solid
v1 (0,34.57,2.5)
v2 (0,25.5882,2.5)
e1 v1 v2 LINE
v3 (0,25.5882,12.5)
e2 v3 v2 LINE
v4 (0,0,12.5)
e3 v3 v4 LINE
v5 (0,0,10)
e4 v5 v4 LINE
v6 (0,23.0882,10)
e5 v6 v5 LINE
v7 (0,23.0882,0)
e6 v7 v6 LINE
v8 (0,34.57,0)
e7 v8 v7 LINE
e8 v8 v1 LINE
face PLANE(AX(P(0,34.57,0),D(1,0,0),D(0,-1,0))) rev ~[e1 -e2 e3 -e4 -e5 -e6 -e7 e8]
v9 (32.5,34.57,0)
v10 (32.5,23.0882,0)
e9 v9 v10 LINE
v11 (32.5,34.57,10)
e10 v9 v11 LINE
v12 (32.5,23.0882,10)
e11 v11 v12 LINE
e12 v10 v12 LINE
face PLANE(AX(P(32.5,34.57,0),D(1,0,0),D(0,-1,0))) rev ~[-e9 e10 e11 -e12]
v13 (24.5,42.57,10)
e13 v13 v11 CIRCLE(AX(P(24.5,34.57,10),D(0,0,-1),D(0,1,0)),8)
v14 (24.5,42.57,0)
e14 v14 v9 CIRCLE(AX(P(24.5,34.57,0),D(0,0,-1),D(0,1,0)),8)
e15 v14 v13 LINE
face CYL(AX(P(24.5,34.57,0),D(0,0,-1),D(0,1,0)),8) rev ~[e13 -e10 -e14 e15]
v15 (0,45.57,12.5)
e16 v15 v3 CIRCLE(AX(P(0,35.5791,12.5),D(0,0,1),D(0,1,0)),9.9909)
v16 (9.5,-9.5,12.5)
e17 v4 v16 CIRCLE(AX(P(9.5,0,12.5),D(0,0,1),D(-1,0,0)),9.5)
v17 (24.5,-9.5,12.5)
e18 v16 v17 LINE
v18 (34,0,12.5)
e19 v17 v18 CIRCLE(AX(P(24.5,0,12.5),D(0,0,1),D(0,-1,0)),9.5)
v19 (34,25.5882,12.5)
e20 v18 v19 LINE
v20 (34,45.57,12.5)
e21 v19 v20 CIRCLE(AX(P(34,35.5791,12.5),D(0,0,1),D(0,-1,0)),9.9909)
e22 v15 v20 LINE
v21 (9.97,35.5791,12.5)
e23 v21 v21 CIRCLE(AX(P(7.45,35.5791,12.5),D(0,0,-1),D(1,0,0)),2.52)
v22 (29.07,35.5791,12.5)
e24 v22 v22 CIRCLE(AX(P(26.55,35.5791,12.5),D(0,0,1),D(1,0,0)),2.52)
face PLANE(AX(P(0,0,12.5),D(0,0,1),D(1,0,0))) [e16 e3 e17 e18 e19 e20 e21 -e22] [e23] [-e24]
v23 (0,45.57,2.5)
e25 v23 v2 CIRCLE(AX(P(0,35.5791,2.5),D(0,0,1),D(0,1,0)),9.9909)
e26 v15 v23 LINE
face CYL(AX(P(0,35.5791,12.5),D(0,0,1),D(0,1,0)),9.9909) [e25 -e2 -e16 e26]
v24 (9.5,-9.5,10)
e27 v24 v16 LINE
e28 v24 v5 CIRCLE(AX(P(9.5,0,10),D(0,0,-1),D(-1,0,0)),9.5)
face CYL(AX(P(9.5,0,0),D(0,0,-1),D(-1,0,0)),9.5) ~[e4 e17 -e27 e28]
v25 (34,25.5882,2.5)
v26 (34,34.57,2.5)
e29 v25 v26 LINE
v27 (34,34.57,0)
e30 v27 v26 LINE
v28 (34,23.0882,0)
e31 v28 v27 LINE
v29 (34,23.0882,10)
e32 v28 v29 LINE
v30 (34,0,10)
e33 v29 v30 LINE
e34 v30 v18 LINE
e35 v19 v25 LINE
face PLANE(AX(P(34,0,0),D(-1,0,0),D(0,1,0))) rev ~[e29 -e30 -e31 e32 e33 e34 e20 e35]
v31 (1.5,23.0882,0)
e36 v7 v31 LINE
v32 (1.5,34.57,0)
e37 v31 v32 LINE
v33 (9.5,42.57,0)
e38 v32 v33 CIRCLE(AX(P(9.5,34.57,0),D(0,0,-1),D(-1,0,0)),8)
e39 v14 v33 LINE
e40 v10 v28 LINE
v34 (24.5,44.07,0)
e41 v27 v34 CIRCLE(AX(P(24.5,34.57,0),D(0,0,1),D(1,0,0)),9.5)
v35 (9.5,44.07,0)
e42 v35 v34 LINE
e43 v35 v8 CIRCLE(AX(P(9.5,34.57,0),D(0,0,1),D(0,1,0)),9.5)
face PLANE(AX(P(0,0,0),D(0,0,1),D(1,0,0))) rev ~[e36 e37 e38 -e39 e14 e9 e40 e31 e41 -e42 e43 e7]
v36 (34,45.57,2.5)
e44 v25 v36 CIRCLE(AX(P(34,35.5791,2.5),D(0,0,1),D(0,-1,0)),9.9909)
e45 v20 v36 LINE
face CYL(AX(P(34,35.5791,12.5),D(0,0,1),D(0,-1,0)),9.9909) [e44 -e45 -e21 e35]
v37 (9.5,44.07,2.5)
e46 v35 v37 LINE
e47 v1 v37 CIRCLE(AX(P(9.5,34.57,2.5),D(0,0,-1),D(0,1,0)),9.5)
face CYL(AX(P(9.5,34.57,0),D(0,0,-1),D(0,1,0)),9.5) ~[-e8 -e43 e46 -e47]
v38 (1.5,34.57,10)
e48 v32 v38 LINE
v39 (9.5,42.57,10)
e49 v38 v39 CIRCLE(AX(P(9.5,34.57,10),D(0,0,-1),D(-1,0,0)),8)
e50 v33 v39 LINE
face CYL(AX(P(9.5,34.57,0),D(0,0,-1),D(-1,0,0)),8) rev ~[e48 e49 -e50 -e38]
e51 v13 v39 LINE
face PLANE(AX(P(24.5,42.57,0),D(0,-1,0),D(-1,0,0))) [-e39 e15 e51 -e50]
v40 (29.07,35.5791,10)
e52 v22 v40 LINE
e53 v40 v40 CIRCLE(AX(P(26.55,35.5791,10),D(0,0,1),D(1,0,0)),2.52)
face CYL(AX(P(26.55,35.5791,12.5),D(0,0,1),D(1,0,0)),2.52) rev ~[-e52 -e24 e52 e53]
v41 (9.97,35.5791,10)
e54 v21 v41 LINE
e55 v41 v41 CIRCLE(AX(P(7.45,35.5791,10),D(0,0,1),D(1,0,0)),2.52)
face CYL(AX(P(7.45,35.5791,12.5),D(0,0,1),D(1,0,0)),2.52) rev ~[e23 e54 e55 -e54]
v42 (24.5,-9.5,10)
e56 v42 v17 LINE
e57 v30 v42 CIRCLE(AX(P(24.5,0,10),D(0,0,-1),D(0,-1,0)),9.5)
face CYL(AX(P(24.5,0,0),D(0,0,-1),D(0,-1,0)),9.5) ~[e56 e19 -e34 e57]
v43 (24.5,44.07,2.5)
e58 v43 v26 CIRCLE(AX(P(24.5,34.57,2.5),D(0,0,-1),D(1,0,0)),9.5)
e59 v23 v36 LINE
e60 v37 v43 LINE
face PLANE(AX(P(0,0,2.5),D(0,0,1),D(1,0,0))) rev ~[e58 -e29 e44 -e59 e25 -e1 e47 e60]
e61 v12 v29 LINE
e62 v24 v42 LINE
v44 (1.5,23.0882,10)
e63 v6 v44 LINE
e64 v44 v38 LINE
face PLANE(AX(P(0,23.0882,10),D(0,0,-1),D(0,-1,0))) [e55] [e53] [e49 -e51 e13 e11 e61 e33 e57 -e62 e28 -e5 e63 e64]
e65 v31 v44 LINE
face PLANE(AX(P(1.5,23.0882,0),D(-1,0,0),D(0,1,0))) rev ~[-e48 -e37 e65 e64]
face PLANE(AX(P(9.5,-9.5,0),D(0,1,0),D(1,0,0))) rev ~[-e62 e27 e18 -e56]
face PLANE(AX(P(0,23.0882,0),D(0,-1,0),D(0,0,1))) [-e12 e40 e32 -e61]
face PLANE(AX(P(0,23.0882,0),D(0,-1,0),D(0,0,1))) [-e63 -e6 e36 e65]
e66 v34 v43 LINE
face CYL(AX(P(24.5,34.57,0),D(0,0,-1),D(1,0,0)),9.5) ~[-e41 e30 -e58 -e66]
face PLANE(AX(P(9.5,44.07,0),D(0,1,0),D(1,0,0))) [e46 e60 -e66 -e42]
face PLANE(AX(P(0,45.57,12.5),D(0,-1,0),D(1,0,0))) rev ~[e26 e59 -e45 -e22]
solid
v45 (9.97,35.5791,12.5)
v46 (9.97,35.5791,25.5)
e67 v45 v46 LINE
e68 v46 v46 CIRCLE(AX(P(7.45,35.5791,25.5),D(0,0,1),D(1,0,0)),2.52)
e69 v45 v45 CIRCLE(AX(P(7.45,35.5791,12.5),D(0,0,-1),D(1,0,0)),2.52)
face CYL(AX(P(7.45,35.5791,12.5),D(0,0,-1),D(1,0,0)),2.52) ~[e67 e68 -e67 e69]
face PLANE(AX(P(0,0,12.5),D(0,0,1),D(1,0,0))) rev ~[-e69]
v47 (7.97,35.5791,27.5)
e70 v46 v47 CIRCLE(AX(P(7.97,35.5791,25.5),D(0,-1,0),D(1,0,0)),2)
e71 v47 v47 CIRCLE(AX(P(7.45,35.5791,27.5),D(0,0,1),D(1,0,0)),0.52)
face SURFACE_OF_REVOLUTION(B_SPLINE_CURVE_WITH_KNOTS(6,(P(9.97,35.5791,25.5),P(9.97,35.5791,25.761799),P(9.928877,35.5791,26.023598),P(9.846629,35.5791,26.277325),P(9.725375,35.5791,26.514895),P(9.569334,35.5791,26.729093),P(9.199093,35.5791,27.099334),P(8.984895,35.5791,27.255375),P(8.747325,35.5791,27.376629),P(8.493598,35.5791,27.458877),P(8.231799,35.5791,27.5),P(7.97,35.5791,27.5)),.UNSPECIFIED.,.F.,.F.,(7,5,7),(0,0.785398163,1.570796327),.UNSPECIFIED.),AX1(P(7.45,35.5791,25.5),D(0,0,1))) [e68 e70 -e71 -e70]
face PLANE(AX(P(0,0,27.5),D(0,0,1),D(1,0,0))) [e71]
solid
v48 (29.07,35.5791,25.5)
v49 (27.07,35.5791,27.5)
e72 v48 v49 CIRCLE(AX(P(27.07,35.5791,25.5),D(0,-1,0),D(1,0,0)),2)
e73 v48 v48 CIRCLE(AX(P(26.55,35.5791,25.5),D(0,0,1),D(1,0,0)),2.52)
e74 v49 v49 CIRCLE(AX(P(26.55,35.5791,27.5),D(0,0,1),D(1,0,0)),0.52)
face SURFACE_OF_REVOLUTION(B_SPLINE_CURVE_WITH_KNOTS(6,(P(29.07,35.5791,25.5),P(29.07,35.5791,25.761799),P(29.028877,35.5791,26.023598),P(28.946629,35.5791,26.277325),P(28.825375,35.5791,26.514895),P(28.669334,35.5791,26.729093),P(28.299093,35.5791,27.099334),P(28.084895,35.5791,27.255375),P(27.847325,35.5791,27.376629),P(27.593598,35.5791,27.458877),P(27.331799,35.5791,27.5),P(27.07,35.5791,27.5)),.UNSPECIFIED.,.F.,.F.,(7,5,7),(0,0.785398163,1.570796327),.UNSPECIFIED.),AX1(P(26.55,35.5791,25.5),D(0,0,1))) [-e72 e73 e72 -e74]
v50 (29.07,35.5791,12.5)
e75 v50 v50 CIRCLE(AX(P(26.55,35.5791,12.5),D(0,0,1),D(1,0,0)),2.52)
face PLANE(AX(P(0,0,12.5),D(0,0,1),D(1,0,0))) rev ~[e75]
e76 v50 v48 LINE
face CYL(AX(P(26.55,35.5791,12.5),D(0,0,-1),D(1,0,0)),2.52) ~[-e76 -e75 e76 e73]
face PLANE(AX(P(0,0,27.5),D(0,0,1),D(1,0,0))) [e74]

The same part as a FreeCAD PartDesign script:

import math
import FreeCAD as App
import Part
import Sketcher


def edges_at(feature, points):
    """Names of the edges that pass closest to the given points."""
    edges = feature.Shape.Edges
    near = lambda p: min(range(len(edges)), key=lambda i: edges[i].distToShape(Part.Vertex(*p))[0])
    return sorted({f"Edge{near(p) + 1}" for p in points})


def add_polygon(sketch, points):
    """Adds a closed chain of lines whose ends are joined by coincident constraints."""
    first, n = sketch.GeometryCount, len(points)
    for a, b in zip(points, points[1:] + points[:1]):
        sketch.addGeometry(Part.LineSegment(App.Vector(*a, 0), App.Vector(*b, 0)), False)
    for i in range(n):
        sketch.addConstraint(Sketcher.Constraint("Coincident", first + i, 2, first + (i + 1) % n, 1))

doc = App.newDocument("Part")
params = doc.addObject("Spreadsheet::Sheet", "Params")
for row, (alias, value) in enumerate([
    ("sketch1_radius", "9.5 mm"),
    ("sketch1_width", "15 mm"),
    ("sketch1_height", "34.57 mm"),
    ("pad1_length", "12.5 mm"),
    ("sketch2_height", "10 mm"),
    ("sketch3_width", "34 mm"),
    ("pad2_length", "10 mm"),
    ("sketch4_radius", "8 mm"),
    ("sketch4_width", "15 mm"),
    ("pocket2_length", "10 mm"),
    ("sketch5_diameter", "5.04 mm"),
    ("pocket3_length", "10 mm"),
    ("sketch6_diameter", "5.04 mm"),
    ("pad3_length", "15 mm"),
    ("fillet_radius", "2 mm"),
], start=1):
    params.set(f"A{row}", alias)
    params.set(f"B{row}", "=" + value)
    params.setAlias(f"B{row}", alias)

body = doc.addObject("PartDesign::Body", "Body")
body.AllowCompound = True

# Sketch on XY plane
sketch1 = body.newObject("Sketcher::SketchObject", "Sketch")
sketch1.AttachmentSupport = (doc.getObject("XY_Plane"), [""])
sketch1.MapMode = "FlatFace"
sketch1.addGeometry([
    Part.ArcOfCircle(Part.Circle(App.Vector(9.5, 34.57, 0), App.Vector(0, 0, 1), 9.5), math.radians(90), math.radians(180)),  # 0
    Part.LineSegment(App.Vector(0, 34.57, 0), App.Vector(0, 0, 0)),  # 1
    Part.ArcOfCircle(Part.Circle(App.Vector(9.5, 0, 0), App.Vector(0, 0, 1), 9.5), math.radians(180), math.radians(270)),  # 2
    Part.LineSegment(App.Vector(9.5, -9.5, 0), App.Vector(24.5, -9.5, 0)),  # 3
    Part.ArcOfCircle(Part.Circle(App.Vector(24.5, 0, 0), App.Vector(0, 0, 1), 9.5), math.radians(-90), math.radians(0)),  # 4
    Part.LineSegment(App.Vector(34, 0, 0), App.Vector(34, 34.57, 0)),  # 5
    Part.ArcOfCircle(Part.Circle(App.Vector(24.5, 34.57, 0), App.Vector(0, 0, 1), 9.5), math.radians(0), math.radians(90)),  # 6
    Part.LineSegment(App.Vector(24.5, 44.07, 0), App.Vector(9.5, 44.07, 0)),  # 7
], False)
sketch1.addConstraint([
    Sketcher.Constraint("Tangent", 0, 2, 1, 1),
    Sketcher.Constraint("Tangent", 1, 2, 2, 1),
    Sketcher.Constraint("Tangent", 2, 2, 3, 1),
    Sketcher.Constraint("Tangent", 3, 2, 4, 1),
    Sketcher.Constraint("Tangent", 4, 2, 5, 1),
    Sketcher.Constraint("Tangent", 5, 2, 6, 1),
    Sketcher.Constraint("Tangent", 6, 2, 7, 1),
    Sketcher.Constraint("Tangent", 7, 2, 0, 1),
    Sketcher.Constraint("Vertical", 1),
    Sketcher.Constraint("Horizontal", 3),
    Sketcher.Constraint("Vertical", 5),
    Sketcher.Constraint("Horizontal", 7),
    Sketcher.Constraint("Coincident", 1, 2, -1, 1),
    Sketcher.Constraint("Equal", 0, 2),
    Sketcher.Constraint("Equal", 2, 4),
    Sketcher.Constraint("Equal", 4, 6),
    Sketcher.Constraint("Radius", 0, 9.5),
    Sketcher.Constraint("DistanceX", 3, 1, 3, 2, 15.0),
    Sketcher.Constraint("DistanceY", 1, 2, 1, 1, 34.57),
])
sketch1.setExpression("Constraints[16]", "Params.sketch1_radius")
sketch1.setExpression("Constraints[17]", "Params.sketch1_width")
sketch1.setExpression("Constraints[18]", "Params.sketch1_height")
pad1 = body.newObject("PartDesign::Pad", "Pad")
pad1.Profile = sketch1
pad1.setExpression("Length", "Params.pad1_length")

# Sketch on YZ plane
sketch2 = body.newObject("Sketcher::SketchObject", "Sketch001")
sketch2.AttachmentSupport = (doc.getObject("YZ_Plane"), [""])
sketch2.MapMode = "FlatFace"
add_polygon(sketch2, [(23.0882, 0), (-9.5, 0), (-9.5, 10), (23.0882, 10)])  # lines 0-3
sketch2.addConstraint([
    Sketcher.Constraint("Horizontal", 0),
    Sketcher.Constraint("Vertical", 1),
    Sketcher.Constraint("Horizontal", 2),
    Sketcher.Constraint("Vertical", 3),
    Sketcher.Constraint("PointOnObject", 0, 2, -1),
    Sketcher.Constraint("DistanceY", 1, 1, 1, 2, 10.0),
    Sketcher.Constraint("DistanceX", 0, 2, 0, 1, 32.5882),
    Sketcher.Constraint("DistanceX", 0, 2, -1, 1, 9.5),
])
sketch2.setExpression("Constraints[9]", "Params.sketch2_height")
pocket1 = body.newObject("PartDesign::Pocket", "Pocket")
pocket1.Profile = sketch2
pocket1.Type = "ThroughAll"
pocket1.Reversed = True

# Sketch on XY plane
sketch3 = body.newObject("Sketcher::SketchObject", "Sketch002")
sketch3.AttachmentSupport = (doc.getObject("XY_Plane"), [""])
sketch3.MapMode = "FlatFace"
sketch3.AttachmentOffset = App.Placement(App.Vector(0, 0, 12.5), App.Rotation())
sketch3.addGeometry([
    Part.LineSegment(App.Vector(34, 45.57, 0), App.Vector(0, 45.57, 0)),
    Part.ArcOfCircle(Part.Circle(App.Vector(0, 35.5791, 0), App.Vector(0, 0, 1), 9.9909), math.radians(90), math.radians(270)),
    Part.LineSegment(App.Vector(0, 25.5882, 0), App.Vector(34, 25.5882, 0)),
    Part.ArcOfCircle(Part.Circle(App.Vector(34, 35.5791, 0), App.Vector(0, 0, 1), 9.9909), math.radians(-90), math.radians(90)),
], False)
sketch3.addConstraint([
    Sketcher.Constraint("Tangent", 0, 2, 1, 1),
    Sketcher.Constraint("Tangent", 1, 2, 2, 1),
    Sketcher.Constraint("Tangent", 2, 2, 3, 1),
    Sketcher.Constraint("Tangent", 3, 2, 0, 1),
    Sketcher.Constraint("Horizontal", 0),
    Sketcher.Constraint("Horizontal", 2),
    Sketcher.Constraint("PointOnObject", 1, 3, -2),
    Sketcher.Constraint("DistanceX", 0, 2, 0, 1, 34.0),
    Sketcher.Constraint("Radius", 1, 9.991),
    Sketcher.Constraint("DistanceY", -1, 1, 0, 2, 45.57),
])
sketch3.setExpression("Constraints[7]", "Params.sketch3_width")
pad2 = body.newObject("PartDesign::Pad", "Pad001")
pad2.Profile = sketch3
pad2.setExpression("Length", "Params.pad2_length")
pad2.Reversed = True

# Sketch on XY plane
sketch4 = body.newObject("Sketcher::SketchObject", "Sketch003")
sketch4.AttachmentSupport = (doc.getObject("XY_Plane"), [""])
sketch4.MapMode = "FlatFace"
sketch4.addGeometry([
    Part.ArcOfCircle(Part.Circle(App.Vector(24.5, 34.57, 0), App.Vector(0, 0, 1), 8), math.radians(0), math.radians(90)),  # 0
    Part.LineSegment(App.Vector(32.5, 34.57, 0), App.Vector(32.5, 23.0882, 0)),  # 1
    Part.LineSegment(App.Vector(32.5, 23.0882, 0), App.Vector(1.5, 23.0882, 0)),  # 2
    Part.LineSegment(App.Vector(1.5, 23.0882, 0), App.Vector(1.5, 34.57, 0)),  # 3
    Part.ArcOfCircle(Part.Circle(App.Vector(9.5, 34.57, 0), App.Vector(0, 0, 1), 8), math.radians(90), math.radians(180)),  # 4
    Part.LineSegment(App.Vector(9.5, 42.57, 0), App.Vector(24.5, 42.57, 0)),  # 5
], False)
sketch4.addConstraint([
    Sketcher.Constraint("Tangent", 0, 1, 1, 1),
    Sketcher.Constraint("Coincident", 1, 2, 2, 1),
    Sketcher.Constraint("Coincident", 2, 2, 3, 1),
    Sketcher.Constraint("Tangent", 3, 2, 4, 2),
    Sketcher.Constraint("Tangent", 4, 1, 5, 1),
    Sketcher.Constraint("Tangent", 5, 2, 0, 2),
    Sketcher.Constraint("Vertical", 1),
    Sketcher.Constraint("Horizontal", 2),
    Sketcher.Constraint("Vertical", 3),
    Sketcher.Constraint("Horizontal", 5),
    Sketcher.Constraint("Equal", 0, 4),
    Sketcher.Constraint("Radius", 0, 8.0),
    Sketcher.Constraint("DistanceX", 5, 1, 5, 2, 15.0),
    Sketcher.Constraint("DistanceX", -1, 1, 0, 3, 24.5),
    Sketcher.Constraint("DistanceY", -1, 1, 0, 3, 34.57),
    Sketcher.Constraint("DistanceY", 1, 2, 1, 1, 11.4818),
])
sketch4.setExpression("Constraints[11]", "Params.sketch4_radius")
sketch4.setExpression("Constraints[12]", "Params.sketch4_width")
pocket2 = body.newObject("PartDesign::Pocket", "Pocket001")
pocket2.Profile = sketch4
pocket2.setExpression("Length", "Params.pocket2_length")
pocket2.Reversed = True

# Sketch on XY plane
sketch5 = body.newObject("Sketcher::SketchObject", "Sketch004")
sketch5.AttachmentSupport = (doc.getObject("XY_Plane"), [""])
sketch5.MapMode = "FlatFace"
sketch5.AttachmentOffset = App.Placement(App.Vector(0, 0, 12.5), App.Rotation())
sketch5.addGeometry([
    Part.Circle(App.Vector(7.45, 35.5791, 0), App.Vector(0, 0, 1), 2.52),
    Part.Circle(App.Vector(26.55, 35.5791, 0), App.Vector(0, 0, 1), 2.52),
], False)
sketch5.addConstraint([
    Sketcher.Constraint("Equal", 0, 1),
    Sketcher.Constraint("Horizontal", 0, 3, 1, 3),
    Sketcher.Constraint("Diameter", 0, 5.04),
    Sketcher.Constraint("DistanceX", 0, 3, 1, 3, 19.1),
    Sketcher.Constraint("DistanceX", -1, 1, 0, 3, 7.45),
    Sketcher.Constraint("DistanceY", -1, 1, 0, 3, 35.579),
])
sketch5.setExpression("Constraints[2]", "Params.sketch5_diameter")
pocket3 = body.newObject("PartDesign::Pocket", "Pocket002")
pocket3.Profile = sketch5
pocket3.setExpression("Length", "Params.pocket3_length")

# Sketch on XY plane
sketch6 = body.newObject("Sketcher::SketchObject", "Sketch005")
sketch6.AttachmentSupport = (doc.getObject("XY_Plane"), [""])
sketch6.MapMode = "FlatFace"
sketch6.AttachmentOffset = App.Placement(App.Vector(0, 0, 12.5), App.Rotation())
sketch6.addGeometry([
    Part.Circle(App.Vector(7.45, 35.5791, 0), App.Vector(0, 0, 1), 2.52),
    Part.Circle(App.Vector(26.55, 35.5791, 0), App.Vector(0, 0, 1), 2.52),
], False)
sketch6.addConstraint([
    Sketcher.Constraint("Equal", 0, 1),
    Sketcher.Constraint("Horizontal", 0, 3, 1, 3),
    Sketcher.Constraint("Diameter", 0, 5.04),
    Sketcher.Constraint("DistanceX", 0, 3, 1, 3, 19.1),
    Sketcher.Constraint("DistanceX", -1, 1, 0, 3, 7.45),
    Sketcher.Constraint("DistanceY", -1, 1, 0, 3, 35.579),
])
sketch6.setExpression("Constraints[2]", "Params.sketch6_diameter")
pad3 = body.newObject("PartDesign::Pad", "Pad002")
pad3.Profile = sketch6
pad3.setExpression("Length", "Params.pad3_length")
doc.recompute()

fillet = body.newObject("PartDesign::Fillet", "Fillet")
fillet.Base = (pad3, edges_at(pad3, [(4.93, 35.579, 27.5), (24.03, 35.579, 27.5)]))
fillet.setExpression("Radius", "Params.fillet_radius")

doc.recompute()
